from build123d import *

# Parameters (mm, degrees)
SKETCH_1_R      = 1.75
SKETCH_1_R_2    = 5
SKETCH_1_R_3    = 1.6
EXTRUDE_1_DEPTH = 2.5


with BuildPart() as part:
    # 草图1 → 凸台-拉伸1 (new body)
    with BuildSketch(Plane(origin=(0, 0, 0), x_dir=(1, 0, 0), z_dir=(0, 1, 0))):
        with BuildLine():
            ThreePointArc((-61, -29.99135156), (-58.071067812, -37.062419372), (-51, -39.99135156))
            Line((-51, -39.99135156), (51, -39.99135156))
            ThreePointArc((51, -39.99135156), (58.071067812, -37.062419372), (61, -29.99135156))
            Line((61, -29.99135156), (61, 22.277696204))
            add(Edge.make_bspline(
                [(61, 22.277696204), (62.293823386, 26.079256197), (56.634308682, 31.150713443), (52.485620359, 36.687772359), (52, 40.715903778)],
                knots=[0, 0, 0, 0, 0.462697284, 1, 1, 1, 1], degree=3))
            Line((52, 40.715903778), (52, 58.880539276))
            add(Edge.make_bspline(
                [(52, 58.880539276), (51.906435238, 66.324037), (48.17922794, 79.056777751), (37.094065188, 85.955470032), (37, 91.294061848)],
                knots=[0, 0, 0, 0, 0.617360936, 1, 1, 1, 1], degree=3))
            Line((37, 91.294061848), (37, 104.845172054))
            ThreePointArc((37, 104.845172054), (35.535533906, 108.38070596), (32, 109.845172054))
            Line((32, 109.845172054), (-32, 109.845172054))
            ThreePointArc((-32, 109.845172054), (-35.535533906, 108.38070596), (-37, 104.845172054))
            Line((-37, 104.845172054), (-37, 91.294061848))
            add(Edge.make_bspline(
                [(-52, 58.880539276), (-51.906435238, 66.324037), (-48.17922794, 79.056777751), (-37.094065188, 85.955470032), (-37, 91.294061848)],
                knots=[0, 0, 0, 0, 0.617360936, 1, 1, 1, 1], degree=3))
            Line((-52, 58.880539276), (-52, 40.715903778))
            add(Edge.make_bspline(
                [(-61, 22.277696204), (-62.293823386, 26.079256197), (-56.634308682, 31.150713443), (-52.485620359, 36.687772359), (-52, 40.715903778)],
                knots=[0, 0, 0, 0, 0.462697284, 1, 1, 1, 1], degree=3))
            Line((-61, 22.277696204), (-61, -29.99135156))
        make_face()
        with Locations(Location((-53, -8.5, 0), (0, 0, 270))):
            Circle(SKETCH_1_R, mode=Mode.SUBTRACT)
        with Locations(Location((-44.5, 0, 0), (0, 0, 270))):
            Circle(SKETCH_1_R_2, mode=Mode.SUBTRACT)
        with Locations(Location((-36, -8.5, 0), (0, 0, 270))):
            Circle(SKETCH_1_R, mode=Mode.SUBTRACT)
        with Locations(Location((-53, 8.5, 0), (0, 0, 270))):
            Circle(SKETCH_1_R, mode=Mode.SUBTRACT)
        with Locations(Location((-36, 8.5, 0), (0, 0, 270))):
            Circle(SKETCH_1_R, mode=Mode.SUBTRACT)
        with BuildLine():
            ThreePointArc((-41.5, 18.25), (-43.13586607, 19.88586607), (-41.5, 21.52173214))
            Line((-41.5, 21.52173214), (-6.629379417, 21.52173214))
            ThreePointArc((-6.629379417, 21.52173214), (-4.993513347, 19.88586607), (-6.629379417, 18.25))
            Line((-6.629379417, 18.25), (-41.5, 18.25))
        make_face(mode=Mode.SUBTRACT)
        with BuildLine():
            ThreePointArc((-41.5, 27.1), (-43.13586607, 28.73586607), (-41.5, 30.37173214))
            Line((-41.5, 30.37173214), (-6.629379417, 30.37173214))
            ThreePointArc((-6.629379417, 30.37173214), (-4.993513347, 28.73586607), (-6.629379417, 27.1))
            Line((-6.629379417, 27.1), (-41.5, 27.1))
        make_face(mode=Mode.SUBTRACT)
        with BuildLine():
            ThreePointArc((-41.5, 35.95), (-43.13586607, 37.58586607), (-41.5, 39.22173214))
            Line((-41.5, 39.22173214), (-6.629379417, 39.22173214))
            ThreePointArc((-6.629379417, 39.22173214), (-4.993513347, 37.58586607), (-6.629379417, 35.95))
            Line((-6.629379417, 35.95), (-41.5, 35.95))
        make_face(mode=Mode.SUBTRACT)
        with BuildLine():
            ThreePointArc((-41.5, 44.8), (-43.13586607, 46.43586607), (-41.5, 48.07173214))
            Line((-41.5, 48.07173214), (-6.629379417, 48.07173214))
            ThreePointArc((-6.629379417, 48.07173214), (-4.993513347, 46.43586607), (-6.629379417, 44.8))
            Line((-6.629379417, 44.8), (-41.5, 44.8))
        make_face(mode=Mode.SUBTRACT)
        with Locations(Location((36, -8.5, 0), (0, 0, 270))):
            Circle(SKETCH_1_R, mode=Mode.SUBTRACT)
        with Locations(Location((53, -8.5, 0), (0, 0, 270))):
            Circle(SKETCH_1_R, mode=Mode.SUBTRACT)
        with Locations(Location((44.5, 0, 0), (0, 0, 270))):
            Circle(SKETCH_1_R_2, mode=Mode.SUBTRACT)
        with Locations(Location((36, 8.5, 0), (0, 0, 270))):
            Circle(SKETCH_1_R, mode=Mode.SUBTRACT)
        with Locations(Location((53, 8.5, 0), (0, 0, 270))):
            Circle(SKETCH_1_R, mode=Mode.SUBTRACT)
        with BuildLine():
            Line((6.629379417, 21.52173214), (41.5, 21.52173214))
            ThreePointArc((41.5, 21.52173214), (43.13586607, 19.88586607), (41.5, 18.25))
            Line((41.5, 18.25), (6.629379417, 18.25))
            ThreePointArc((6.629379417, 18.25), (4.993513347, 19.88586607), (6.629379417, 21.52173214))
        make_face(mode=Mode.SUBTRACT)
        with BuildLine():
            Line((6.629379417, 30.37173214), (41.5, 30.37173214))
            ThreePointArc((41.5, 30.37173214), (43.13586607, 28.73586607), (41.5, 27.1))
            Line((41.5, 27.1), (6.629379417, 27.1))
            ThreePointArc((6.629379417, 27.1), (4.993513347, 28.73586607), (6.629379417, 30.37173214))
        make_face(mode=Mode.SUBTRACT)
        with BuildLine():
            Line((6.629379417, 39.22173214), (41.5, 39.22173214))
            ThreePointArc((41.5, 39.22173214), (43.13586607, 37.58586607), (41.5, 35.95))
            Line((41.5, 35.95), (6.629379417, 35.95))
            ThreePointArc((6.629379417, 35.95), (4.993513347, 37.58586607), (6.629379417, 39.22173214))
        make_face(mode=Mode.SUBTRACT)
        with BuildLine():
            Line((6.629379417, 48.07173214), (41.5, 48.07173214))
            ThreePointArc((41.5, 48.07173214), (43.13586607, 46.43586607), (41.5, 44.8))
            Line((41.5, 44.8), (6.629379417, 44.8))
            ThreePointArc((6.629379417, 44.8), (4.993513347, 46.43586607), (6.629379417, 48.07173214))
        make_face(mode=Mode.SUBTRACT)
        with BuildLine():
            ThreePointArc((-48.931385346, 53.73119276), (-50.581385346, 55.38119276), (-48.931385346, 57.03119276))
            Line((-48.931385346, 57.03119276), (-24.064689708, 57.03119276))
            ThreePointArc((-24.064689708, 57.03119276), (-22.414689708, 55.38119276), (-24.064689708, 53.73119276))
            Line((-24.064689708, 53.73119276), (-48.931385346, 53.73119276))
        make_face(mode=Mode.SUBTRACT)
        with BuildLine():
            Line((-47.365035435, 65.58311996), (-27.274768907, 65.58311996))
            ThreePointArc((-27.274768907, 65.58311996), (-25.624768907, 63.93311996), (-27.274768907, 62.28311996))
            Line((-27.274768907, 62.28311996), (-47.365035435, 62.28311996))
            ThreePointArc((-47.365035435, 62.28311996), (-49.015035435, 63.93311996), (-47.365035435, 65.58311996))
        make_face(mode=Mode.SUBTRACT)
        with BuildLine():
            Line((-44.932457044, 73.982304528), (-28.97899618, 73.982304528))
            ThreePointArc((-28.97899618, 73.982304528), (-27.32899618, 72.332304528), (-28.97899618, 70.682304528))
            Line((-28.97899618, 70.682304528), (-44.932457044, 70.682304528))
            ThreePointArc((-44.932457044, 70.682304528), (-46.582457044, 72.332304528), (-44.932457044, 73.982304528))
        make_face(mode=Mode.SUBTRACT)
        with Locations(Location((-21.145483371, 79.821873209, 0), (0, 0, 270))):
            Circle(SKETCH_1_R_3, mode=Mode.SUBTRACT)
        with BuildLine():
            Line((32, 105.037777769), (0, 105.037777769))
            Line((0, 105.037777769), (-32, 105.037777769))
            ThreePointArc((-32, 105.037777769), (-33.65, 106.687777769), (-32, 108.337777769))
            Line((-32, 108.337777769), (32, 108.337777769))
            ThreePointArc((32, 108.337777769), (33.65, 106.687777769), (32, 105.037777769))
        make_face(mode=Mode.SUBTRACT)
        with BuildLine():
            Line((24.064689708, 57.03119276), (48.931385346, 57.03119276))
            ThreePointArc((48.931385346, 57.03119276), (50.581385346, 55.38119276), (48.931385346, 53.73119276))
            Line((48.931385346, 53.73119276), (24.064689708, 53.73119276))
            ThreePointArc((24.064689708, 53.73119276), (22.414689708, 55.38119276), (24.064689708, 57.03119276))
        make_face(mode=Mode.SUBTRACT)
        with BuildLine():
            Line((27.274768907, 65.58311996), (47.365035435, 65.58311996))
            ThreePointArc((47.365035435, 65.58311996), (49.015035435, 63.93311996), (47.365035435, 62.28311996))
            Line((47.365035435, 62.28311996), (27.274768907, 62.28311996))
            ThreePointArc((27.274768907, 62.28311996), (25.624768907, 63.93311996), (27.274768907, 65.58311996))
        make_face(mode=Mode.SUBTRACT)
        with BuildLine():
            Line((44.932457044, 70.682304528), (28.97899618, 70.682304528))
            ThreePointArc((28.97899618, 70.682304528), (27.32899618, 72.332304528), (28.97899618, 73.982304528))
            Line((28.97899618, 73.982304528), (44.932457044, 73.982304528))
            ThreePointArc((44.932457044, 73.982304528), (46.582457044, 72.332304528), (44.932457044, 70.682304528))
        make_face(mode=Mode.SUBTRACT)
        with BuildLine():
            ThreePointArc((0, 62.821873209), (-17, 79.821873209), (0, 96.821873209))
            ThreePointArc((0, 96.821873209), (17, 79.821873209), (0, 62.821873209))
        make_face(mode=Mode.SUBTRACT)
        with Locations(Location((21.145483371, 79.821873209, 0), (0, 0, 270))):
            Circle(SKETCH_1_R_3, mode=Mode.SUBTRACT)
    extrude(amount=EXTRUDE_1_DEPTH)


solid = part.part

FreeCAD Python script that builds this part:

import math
import FreeCAD as App
import Part
import Sketcher
Q = App.Units.Quantity

doc = App.newDocument("Part")
body = doc.addObject("PartDesign::Body", "Body")

sketch1 = doc.addObject("Sketcher::SketchObject", "Sketch")
body.addObject(sketch1)
sketch1.AttachmentSupport = (doc.XZ_Plane, [""])
sketch1.MapMode = "FlatFace"
sketch1.addGeometry([
    Part.ArcOfCircle(Part.Circle(App.Vector(-51, 29.991352, 0), App.Vector(0, 0, 1), 10), math.radians(90), math.radians(180)),
    Part.LineSegment(App.Vector(-51, 39.991352, 0), App.Vector(51, 39.991352, 0)),
    Part.ArcOfCircle(Part.Circle(App.Vector(51, 29.991352, 0), App.Vector(0, 0, 1), 10), math.radians(0), math.radians(90)),
    Part.LineSegment(App.Vector(61, 29.991352, 0), App.Vector(61, -22.277696, 0)),
    Part.BSplineCurve([App.Vector(61, -22.277696, 0), App.Vector(62.293823, -26.079256, 0), App.Vector(56.634309, -31.150713, 0), App.Vector(52.48562, -36.687772, 0), App.Vector(52, -40.715904, 0)], [4, 1, 4], [0, 0.462697284, 1], False, 3, [1, 1, 1, 1, 1], False),
    Part.LineSegment(App.Vector(52, -40.715904, 0), App.Vector(52, -58.880539, 0)),
    Part.BSplineCurve([App.Vector(52, -58.880539, 0), App.Vector(51.906435, -66.324037, 0), App.Vector(48.179228, -79.056778, 0), App.Vector(37.094065, -85.95547, 0), App.Vector(37, -91.294062, 0)], [4, 1, 4], [0, 0.617360936, 1], False, 3, [1, 1, 1, 1, 1], False),
    Part.LineSegment(App.Vector(37, -91.294062, 0), App.Vector(37, -104.845172, 0)),
    Part.ArcOfCircle(Part.Circle(App.Vector(32, -104.845172, 0), App.Vector(0, 0, 1), 5), math.radians(-90), math.radians(0)),
    Part.LineSegment(App.Vector(32, -109.845172, 0), App.Vector(-32, -109.845172, 0)),
    Part.ArcOfCircle(Part.Circle(App.Vector(-32, -104.845172, 0), App.Vector(0, 0, 1), 5), math.radians(180), math.radians(270)),
    Part.LineSegment(App.Vector(-37, -104.845172, 0), App.Vector(-37, -91.294062, 0)),
    Part.BSplineCurve([App.Vector(-52, -58.880539, 0), App.Vector(-51.906435, -66.324037, 0), App.Vector(-48.179228, -79.056778, 0), App.Vector(-37.094065, -85.95547, 0), App.Vector(-37, -91.294062, 0)], [4, 1, 4], [0, 0.617360936, 1], False, 3, [1, 1, 1, 1, 1], False),
    Part.LineSegment(App.Vector(-52, -58.880539, 0), App.Vector(-52, -40.715904, 0)),
    Part.BSplineCurve([App.Vector(-61, -22.277696, 0), App.Vector(-62.293823, -26.079256, 0), App.Vector(-56.634309, -31.150713, 0), App.Vector(-52.48562, -36.687772, 0), App.Vector(-52, -40.715904, 0)], [4, 1, 4], [0, 0.462697284, 1], False, 3, [1, 1, 1, 1, 1], False),
    Part.LineSegment(App.Vector(-61, -22.277696, 0), App.Vector(-61, 29.991352, 0)),
    Part.Circle(App.Vector(-53, 8.5, 0), App.Vector(0, 0, 1), 1.75),
    Part.Circle(App.Vector(-44.5, 0, 0), App.Vector(0, 0, 1), 5),
    Part.Circle(App.Vector(-36, 8.5, 0), App.Vector(0, 0, 1), 1.75),
    Part.Circle(App.Vector(-53, -8.5, 0), App.Vector(0, 0, 1), 1.75),
    Part.Circle(App.Vector(-36, -8.5, 0), App.Vector(0, 0, 1), 1.75),
    Part.LineSegment(App.Vector(-6.629379, -18.25, 0), App.Vector(-41.5, -18.25, 0)),
    Part.ArcOfCircle(Part.Circle(App.Vector(-41.5, -19.885866, 0), App.Vector(0, 0, 1), 1.635866), math.radians(90), math.radians(270)),
    Part.LineSegment(App.Vector(-41.5, -21.521732, 0), App.Vector(-6.629379, -21.521732, 0)),
    Part.ArcOfCircle(Part.Circle(App.Vector(-6.629379, -19.885866, 0), App.Vector(0, 0, 1), 1.635866), math.radians(-90), math.radians(90)),
    Part.LineSegment(App.Vector(-6.629379, -27.1, 0), App.Vector(-41.5, -27.1, 0)),
    Part.ArcOfCircle(Part.Circle(App.Vector(-41.5, -28.735866, 0), App.Vector(0, 0, 1), 1.635866), math.radians(90), math.radians(270)),
    Part.LineSegment(App.Vector(-41.5, -30.371732, 0), App.Vector(-6.629379, -30.371732, 0)),
    Part.ArcOfCircle(Part.Circle(App.Vector(-6.629379, -28.735866, 0), App.Vector(0, 0, 1), 1.635866), math.radians(-90), math.radians(90)),
    Part.LineSegment(App.Vector(-6.629379, -35.95, 0), App.Vector(-41.5, -35.95, 0)),
    Part.ArcOfCircle(Part.Circle(App.Vector(-41.5, -37.585866, 0), App.Vector(0, 0, 1), 1.635866), math.radians(90), math.radians(270)),
    Part.LineSegment(App.Vector(-41.5, -39.221732, 0), App.Vector(-6.629379, -39.221732, 0)),
    Part.ArcOfCircle(Part.Circle(App.Vector(-6.629379, -37.585866, 0), App.Vector(0, 0, 1), 1.635866), math.radians(-90), math.radians(90)),
    Part.LineSegment(App.Vector(-6.629379, -44.8, 0), App.Vector(-41.5, -44.8, 0)),
    Part.ArcOfCircle(Part.Circle(App.Vector(-41.5, -46.435866, 0), App.Vector(0, 0, 1), 1.635866), math.radians(90), math.radians(270)),
    Part.LineSegment(App.Vector(-41.5, -48.071732, 0), App.Vector(-6.629379, -48.071732, 0)),
    Part.ArcOfCircle(Part.Circle(App.Vector(-6.629379, -46.435866, 0), App.Vector(0, 0, 1), 1.635866), math.radians(-90), math.radians(90)),
    Part.Circle(App.Vector(36, 8.5, 0), App.Vector(0, 0, 1), 1.75),
    Part.Circle(App.Vector(53, 8.5, 0), App.Vector(0, 0, 1), 1.75),
    Part.Circle(App.Vector(44.5, 0, 0), App.Vector(0, 0, 1), 5),
    Part.Circle(App.Vector(36, -8.5, 0), App.Vector(0, 0, 1), 1.75),
    Part.Circle(App.Vector(53, -8.5, 0), App.Vector(0, 0, 1), 1.75),
    Part.ArcOfCircle(Part.Circle(App.Vector(6.629379, -19.885866, 0), App.Vector(0, 0, 1), 1.635866), math.radians(90), math.radians(270)),
    Part.LineSegment(App.Vector(6.629379, -21.521732, 0), App.Vector(41.5, -21.521732, 0)),
    Part.ArcOfCircle(Part.Circle(App.Vector(41.5, -19.885866, 0), App.Vector(0, 0, 1), 1.635866), math.radians(-90), math.radians(90)),
    Part.LineSegment(App.Vector(41.5, -18.25, 0), App.Vector(6.629379, -18.25, 0)),
    Part.ArcOfCircle(Part.Circle(App.Vector(6.629379, -28.735866, 0), App.Vector(0, 0, 1), 1.635866), math.radians(90), math.radians(270)),
    Part.LineSegment(App.Vector(6.629379, -30.371732, 0), App.Vector(41.5, -30.371732, 0)),
    Part.ArcOfCircle(Part.Circle(App.Vector(41.5, -28.735866, 0), App.Vector(0, 0, 1), 1.635866), math.radians(-90), math.radians(90)),
    Part.LineSegment(App.Vector(41.5, -27.1, 0), App.Vector(6.629379, -27.1, 0)),
    Part.ArcOfCircle(Part.Circle(App.Vector(6.629379, -37.585866, 0), App.Vector(0, 0, 1), 1.635866), math.radians(90), math.radians(270)),
    Part.LineSegment(App.Vector(6.629379, -39.221732, 0), App.Vector(41.5, -39.221732, 0)),
    Part.ArcOfCircle(Part.Circle(App.Vector(41.5, -37.585866, 0), App.Vector(0, 0, 1), 1.635866), math.radians(-90), math.radians(90)),
    Part.LineSegment(App.Vector(41.5, -35.95, 0), App.Vector(6.629379, -35.95, 0)),
    Part.ArcOfCircle(Part.Circle(App.Vector(6.629379, -46.435866, 0), App.Vector(0, 0, 1), 1.635866), math.radians(90), math.radians(270)),
    Part.LineSegment(App.Vector(6.629379, -48.071732, 0), App.Vector(41.5, -48.071732, 0)),
    Part.ArcOfCircle(Part.Circle(App.Vector(41.5, -46.435866, 0), App.Vector(0, 0, 1), 1.635866), math.radians(-90), math.radians(90)),
    Part.LineSegment(App.Vector(41.5, -44.8, 0), App.Vector(6.629379, -44.8, 0)),
    Part.LineSegment(App.Vector(-24.06469, -53.731193, 0), App.Vector(-48.931385, -53.731193, 0)),
    Part.ArcOfCircle(Part.Circle(App.Vector(-48.931385, -55.381193, 0), App.Vector(0, 0, 1), 1.65), math.radians(90), math.radians(270)),
    Part.LineSegment(App.Vector(-48.931385, -57.031193, 0), App.Vector(-24.06469, -57.031193, 0)),
    Part.ArcOfCircle(Part.Circle(App.Vector(-24.06469, -55.381193, 0), App.Vector(0, 0, 1), 1.65), math.radians(-90), math.radians(90)),
    Part.ArcOfCircle(Part.Circle(App.Vector(-47.365035, -63.93312, 0), App.Vector(0, 0, 1), 1.65), math.radians(90), math.radians(270)),
    Part.LineSegment(App.Vector(-47.365035, -65.58312, 0), App.Vector(-27.274769, -65.58312, 0)),
    Part.ArcOfCircle(Part.Circle(App.Vector(-27.274769, -63.93312, 0), App.Vector(0, 0, 1), 1.65), math.radians(-90), math.radians(90)),
    Part.LineSegment(App.Vector(-27.274769, -62.28312, 0), App.Vector(-47.365035, -62.28312, 0)),
    Part.ArcOfCircle(Part.Circle(App.Vector(-44.932457, -72.332305, 0), App.Vector(0, 0, 1), 1.65), math.radians(90), math.radians(270)),
    Part.LineSegment(App.Vector(-44.932457, -73.982305, 0), App.Vector(-28.978996, -73.982305, 0)),
    Part.ArcOfCircle(Part.Circle(App.Vector(-28.978996, -72.332305, 0), App.Vector(0, 0, 1), 1.65), math.radians(-90), math.radians(90)),
    Part.LineSegment(App.Vector(-28.978996, -70.682305, 0), App.Vector(-44.932457, -70.682305, 0)),
    Part.Circle(App.Vector(-21.145483, -79.821873, 0), App.Vector(0, 0, 1), 1.6),
    Part.ArcOfCircle(Part.Circle(App.Vector(24.06469, -55.381193, 0), App.Vector(0, 0, 1), 1.65), math.radians(90), math.radians(270)),
    Part.LineSegment(App.Vector(24.06469, -57.031193, 0), App.Vector(48.931385, -57.031193, 0)),
    Part.ArcOfCircle(Part.Circle(App.Vector(48.931385, -55.381193, 0), App.Vector(0, 0, 1), 1.65), math.radians(-90), math.radians(90)),
    Part.LineSegment(App.Vector(48.931385, -53.731193, 0), App.Vector(24.06469, -53.731193, 0)),
    Part.ArcOfCircle(Part.Circle(App.Vector(27.274769, -63.93312, 0), App.Vector(0, 0, 1), 1.65), math.radians(90), math.radians(270)),
    Part.LineSegment(App.Vector(27.274769, -65.58312, 0), App.Vector(47.365035, -65.58312, 0)),
    Part.ArcOfCircle(Part.Circle(App.Vector(47.365035, -63.93312, 0), App.Vector(0, 0, 1), 1.65), math.radians(-90), math.radians(90)),
    Part.LineSegment(App.Vector(47.365035, -62.28312, 0), App.Vector(27.274769, -62.28312, 0)),
    Part.ArcOfCircle(Part.Circle(App.Vector(44.932457, -72.332305, 0), App.Vector(0, 0, 1), 1.65), math.radians(-90), math.radians(90)),
    Part.LineSegment(App.Vector(44.932457, -70.682305, 0), App.Vector(28.978996, -70.682305, 0)),
    Part.ArcOfCircle(Part.Circle(App.Vector(28.978996, -72.332305, 0), App.Vector(0, 0, 1), 1.65), math.radians(90), math.radians(270)),
    Part.LineSegment(App.Vector(28.978996, -73.982305, 0), App.Vector(44.932457, -73.982305, 0)),
    Part.Circle(App.Vector(0, -79.821873, 0), App.Vector(0, 0, 1), 17),
    Part.Circle(App.Vector(21.145483, -79.821873, 0), App.Vector(0, 0, 1), 1.6),
    Part.ArcOfCircle(Part.Circle(App.Vector(32, -106.687778, 0), App.Vector(0, 0, 1), 1.65), math.radians(-90), math.radians(90)),
    Part.LineSegment(App.Vector(32, -105.037778, 0), App.Vector(-32, -105.037778, 0)),
    Part.ArcOfCircle(Part.Circle(App.Vector(-32, -106.687778, 0), App.Vector(0, 0, 1), 1.65), math.radians(90), math.radians(270)),
    Part.LineSegment(App.Vector(-32, -108.337778, 0), App.Vector(32, -108.337778, 0)),
], False)
sketch1.addConstraint([
    Sketcher.Constraint("Block", 4),
    Sketcher.Constraint("Block", 6),
    Sketcher.Constraint("Block", 12),
    Sketcher.Constraint("Block", 14),
    Sketcher.Constraint("Tangent", 0, 1, 1, 1),
    Sketcher.Constraint("Tangent", 1, 2, 2, 2),
    Sketcher.Constraint("Tangent", 2, 1, 3, 1),
    Sketcher.Constraint("Coincident", 3, 2, 4, 1),
    Sketcher.Constraint("Coincident", 4, 2, 5, 1),
    Sketcher.Constraint("Coincident", 5, 2, 6, 1),
    Sketcher.Constraint("Coincident", 6, 2, 7, 1),
    Sketcher.Constraint("Tangent", 7, 2, 8, 2),
    Sketcher.Constraint("Tangent", 8, 1, 9, 1),
    Sketcher.Constraint("Tangent", 9, 2, 10, 2),
    Sketcher.Constraint("Tangent", 10, 1, 11, 1),
    Sketcher.Constraint("Coincident", 11, 2, 12, 2),
    Sketcher.Constraint("Coincident", 12, 1, 13, 1),
    Sketcher.Constraint("Coincident", 13, 2, 14, 2),
    Sketcher.Constraint("Coincident", 14, 1, 15, 1),
    Sketcher.Constraint("Tangent", 15, 2, 0, 2),
    Sketcher.Constraint("Tangent", 21, 2, 22, 1),
    Sketcher.Constraint("Tangent", 22, 2, 23, 1),
    Sketcher.Constraint("Tangent", 23, 2, 24, 1),
    Sketcher.Constraint("Tangent", 24, 2, 21, 1),
    Sketcher.Constraint("Tangent", 25, 2, 26, 1),
    Sketcher.Constraint("Tangent", 26, 2, 27, 1),
    Sketcher.Constraint("Tangent", 27, 2, 28, 1),
    Sketcher.Constraint("Tangent", 28, 2, 25, 1),
    Sketcher.Constraint("Tangent", 29, 2, 30, 1),
    Sketcher.Constraint("Tangent", 30, 2, 31, 1),
    Sketcher.Constraint("Tangent", 31, 2, 32, 1),
    Sketcher.Constraint("Tangent", 32, 2, 29, 1),
    Sketcher.Constraint("Tangent", 33, 2, 34, 1),
    Sketcher.Constraint("Tangent", 34, 2, 35, 1),
    Sketcher.Constraint("Tangent", 35, 2, 36, 1),
    Sketcher.Constraint("Tangent", 36, 2, 33, 1),
    Sketcher.Constraint("Tangent", 42, 2, 43, 1),
    Sketcher.Constraint("Tangent", 43, 2, 44, 1),
    Sketcher.Constraint("Tangent", 44, 2, 45, 1),
    Sketcher.Constraint("Tangent", 45, 2, 42, 1),
    Sketcher.Constraint("Tangent", 46, 2, 47, 1),
    Sketcher.Constraint("Tangent", 47, 2, 48, 1),
    Sketcher.Constraint("Tangent", 48, 2, 49, 1),
    Sketcher.Constraint("Tangent", 49, 2, 46, 1),
    Sketcher.Constraint("Tangent", 50, 2, 51, 1),
    Sketcher.Constraint("Tangent", 51, 2, 52, 1),
    Sketcher.Constraint("Tangent", 52, 2, 53, 1),
    Sketcher.Constraint("Tangent", 53, 2, 50, 1),
    Sketcher.Constraint("Tangent", 54, 2, 55, 1),
    Sketcher.Constraint("Tangent", 55, 2, 56, 1),
    Sketcher.Constraint("Tangent", 56, 2, 57, 1),
    Sketcher.Constraint("Tangent", 57, 2, 54, 1),
    Sketcher.Constraint("Tangent", 58, 2, 59, 1),
    Sketcher.Constraint("Tangent", 59, 2, 60, 1),
    Sketcher.Constraint("Tangent", 60, 2, 61, 1),
    Sketcher.Constraint("Tangent", 61, 2, 58, 1),
    Sketcher.Constraint("Tangent", 62, 2, 63, 1),
    Sketcher.Constraint("Tangent", 63, 2, 64, 1),
    Sketcher.Constraint("Tangent", 64, 2, 65, 1),
    Sketcher.Constraint("Tangent", 65, 2, 62, 1),
    Sketcher.Constraint("Tangent", 66, 2, 67, 1),
    Sketcher.Constraint("Tangent", 67, 2, 68, 1),
    Sketcher.Constraint("Tangent", 68, 2, 69, 1),
    Sketcher.Constraint("Tangent", 69, 2, 66, 1),
    Sketcher.Constraint("Tangent", 71, 2, 72, 1),
    Sketcher.Constraint("Tangent", 72, 2, 73, 1),
    Sketcher.Constraint("Tangent", 73, 2, 74, 1),
    Sketcher.Constraint("Tangent", 74, 2, 71, 1),
    Sketcher.Constraint("Tangent", 75, 2, 76, 1),
    Sketcher.Constraint("Tangent", 76, 2, 77, 1),
    Sketcher.Constraint("Tangent", 77, 2, 78, 1),
    Sketcher.Constraint("Tangent", 78, 2, 75, 1),
    Sketcher.Constraint("Tangent", 79, 2, 80, 1),
    Sketcher.Constraint("Tangent", 80, 2, 81, 1),
    Sketcher.Constraint("Tangent", 81, 2, 82, 1),
    Sketcher.Constraint("Tangent", 82, 2, 79, 1),
    Sketcher.Constraint("Tangent", 85, 2, 86, 1),
    Sketcher.Constraint("Tangent", 86, 2, 87, 1),
    Sketcher.Constraint("Tangent", 87, 2, 88, 1),
    Sketcher.Constraint("Tangent", 88, 2, 85, 1),
    Sketcher.Constraint("Horizontal", 1),
    Sketcher.Constraint("Vertical", 3),
    Sketcher.Constraint("Vertical", 7),
    Sketcher.Constraint("Horizontal", 9),
    Sketcher.Constraint("Vertical", 11),
    Sketcher.Constraint("Vertical", 15),
    Sketcher.Constraint("Horizontal", 21),
    Sketcher.Constraint("Horizontal", 23),
    Sketcher.Constraint("Horizontal", 25),
    Sketcher.Constraint("Horizontal", 27),
    Sketcher.Constraint("Horizontal", 29),
    Sketcher.Constraint("Horizontal", 31),
    Sketcher.Constraint("Horizontal", 33),
    Sketcher.Constraint("Horizontal", 35),
    Sketcher.Constraint("Horizontal", 43),
    Sketcher.Constraint("Horizontal", 45),
    Sketcher.Constraint("Horizontal", 47),
    Sketcher.Constraint("Horizontal", 49),
    Sketcher.Constraint("Horizontal", 51),
    Sketcher.Constraint("Horizontal", 53),
    Sketcher.Constraint("Horizontal", 55),
    Sketcher.Constraint("Horizontal", 57),
    Sketcher.Constraint("Horizontal", 58),
    Sketcher.Constraint("Horizontal", 60),
    Sketcher.Constraint("Horizontal", 63),
    Sketcher.Constraint("Horizontal", 65),
    Sketcher.Constraint("Horizontal", 67),
    Sketcher.Constraint("Horizontal", 69),
    Sketcher.Constraint("Horizontal", 72),
    Sketcher.Constraint("Horizontal", 74),
    Sketcher.Constraint("Horizontal", 76),
    Sketcher.Constraint("Horizontal", 78),
    Sketcher.Constraint("Horizontal", 80),
    Sketcher.Constraint("Horizontal", 82),
    Sketcher.Constraint("Horizontal", 86),
    Sketcher.Constraint("Horizontal", 88),
    Sketcher.Constraint("Equal", 0, 2),
    Sketcher.Constraint("Equal", 8, 10),
    Sketcher.Constraint("Equal", 10, 17),
    Sketcher.Constraint("Equal", 16, 18),
    Sketcher.Constraint("Equal", 18, 19),
    Sketcher.Constraint("Equal", 19, 20),
    Sketcher.Constraint("Equal", 24, 26),
    Sketcher.Constraint("Equal", 28, 30),
    Sketcher.Constraint("Equal", 32, 34),
    Sketcher.Constraint("Equal", 20, 37),
    Sketcher.Constraint("Equal", 37, 38),
    Sketcher.Constraint("Equal", 17, 39),
    Sketcher.Constraint("Equal", 38, 40),
    Sketcher.Constraint("Equal", 40, 41),
    Sketcher.Constraint("Equal", 36, 42),
    Sketcher.Constraint("Equal", 44, 46),
    Sketcher.Constraint("Equal", 48, 50),
    Sketcher.Constraint("Equal", 52, 54),
    Sketcher.Constraint("Equal", 61, 62),
    Sketcher.Constraint("Equal", 64, 66),
    Sketcher.Constraint("Equal", 68, 71),
    Sketcher.Constraint("Equal", 73, 75),
    Sketcher.Constraint("Equal", 77, 79),
    Sketcher.Constraint("Equal", 70, 84),
    Sketcher.Constraint("Equal", 81, 85),
    Sketcher.Constraint("Symmetric", 20, 3, 37, 3, -1, 1),
    Sketcher.Constraint("Symmetric", 19, 3, 38, 3, -1, 1),
    Sketcher.Constraint("Symmetric", 17, 3, 39, 3, -1, 1),
    Sketcher.Constraint("Symmetric", 18, 3, 40, 3, -1, 1),
    Sketcher.Constraint("Symmetric", 16, 3, 41, 3, -1, 1),
    Sketcher.Constraint("Symmetric", 18, 3, 37, 3, -2),
    Sketcher.Constraint("Symmetric", 16, 3, 38, 3, -2),
    Sketcher.Constraint("Symmetric", 24, 3, 42, 3, -2),
    Sketcher.Constraint("Symmetric", 28, 3, 46, 3, -2),
    Sketcher.Constraint("Symmetric", 32, 3, 50, 3, -2),
    Sketcher.Constraint("Symmetric", 36, 3, 54, 3, -2),
    Sketcher.Constraint("Symmetric", 61, 3, 71, 3, -2),
    Sketcher.Constraint("Symmetric", 64, 3, 75, 3, -2),
    Sketcher.Constraint("Symmetric", 66, 3, 79, 3, -2),
    Sketcher.Constraint("Symmetric", 70, 3, 84, 3, -2),
    Sketcher.Constraint("PointOnObject", 17, 3, -1),
    Sketcher.Constraint("PointOnObject", 83, 3, -2),
    Sketcher.Constraint("Horizontal", 16, 3, 18, 3),
    Sketcher.Constraint("Horizontal", 70, 3, 83, 3),
    Sketcher.Constraint("Vertical", 22, 3, 26, 3),
    Sketcher.Constraint("Vertical", 24, 3, 28, 3),
    Sketcher.Constraint("Vertical", 26, 3, 30, 3),
    Sketcher.Constraint("Vertical", 28, 3, 32, 3),
    Sketcher.Constraint("Vertical", 30, 3, 34, 3),
    Sketcher.Constraint("Vertical", 32, 3, 36, 3),
    Sketcher.Constraint("Vertical", 44, 3, 48, 3),
    Sketcher.Constraint("Vertical", 48, 3, 52, 3),
    Sketcher.Constraint("Vertical", 52, 3, 56, 3),
    Sketcher.Constraint("Vertical", 8, 3, 85, 3),
    Sketcher.Constraint("Vertical", 10, 3, 87, 3),
    Sketcher.Constraint("Equal", 35, 43),
    Sketcher.Constraint("Equal", 60, 72),
    Sketcher.Constraint("Equal", 65, 76),
    Sketcher.Constraint("Equal", 69, 80),
    Sketcher.Constraint("Diameter", 17, Q("10 mm")),
    Sketcher.Constraint("Diameter", 83, Q("34 mm")),
    Sketcher.Constraint("Radius", 0, Q("10 mm")),
    Sketcher.Constraint("Diameter", 16, Q("3.5 mm")),
    Sketcher.Constraint("Diameter", 70, Q("3.2 mm")),
    Sketcher.Constraint("Radius", 59, Q("1.65 mm")),
    Sketcher.Constraint("DistanceX", 16, 3, -1, 1, Q("53 mm")),
    Sketcher.Constraint("DistanceX", 18, 3, -1, 1, Q("36 mm")),
    Sketcher.Constraint("DistanceY", -1, 1, 16, 3, Q("8.5 mm")),
    Sketcher.Constraint("DistanceX", 17, 3, -1, 1, Q("44.5 mm")),
    Sketcher.Constraint("DistanceX", 22, 3, -1, 1, Q("41.5 mm")),
    Sketcher.Constraint("DistanceY", 25, 2, -1, 1, Q("27.1 mm")),
    Sketcher.Constraint("DistanceY", 33, 2, -1, 1, Q("44.8 mm")),
    Sketcher.Constraint("DistanceY", 21, 2, -1, 1, Q("18.25 mm")),
    Sketcher.Constraint("DistanceY", 29, 2, -1, 1, Q("35.95 mm")),
    Sketcher.Constraint("Radius", 22, Q("1.635866 mm")),
    Sketcher.Constraint("DistanceX", 21, 2, 21, 1, Q("34.870621 mm")),
    Sketcher.Constraint("DistanceX", 67, 1, 67, 2, Q("15.953461 mm")),
    Sketcher.Constraint("DistanceY", 7, 2, 7, 1, Q("13.55111 mm")),
    Sketcher.Constraint("DistanceX", 58, 2, 58, 1, Q("24.866696 mm")),
    Sketcher.Constraint("DistanceX", 63, 1, 63, 2, Q("20.090267 mm")),
    Sketcher.Constraint("DistanceY", 3, 2, 3, 1, Q("52.269048 mm")),
    Sketcher.Constraint("DistanceX", 61, 3, -1, 1, Q("24.06469 mm")),
    Sketcher.Constraint("DistanceY", 62, 3, -1, 1, Q("63.93312 mm")),
    Sketcher.Constraint("DistanceX", 64, 3, -1, 1, Q("27.274769 mm")),
    Sketcher.Constraint("DistanceY", 59, 3, -1, 1, Q("55.381193 mm")),
    Sketcher.Constraint("DistanceX", 66, 3, -1, 1, Q("44.932457 mm")),
    Sketcher.Constraint("DistanceY", 66, 3, -1, 1, Q("72.332305 mm")),
    Sketcher.Constraint("DistanceX", 70, 3, -1, 1, Q("21.145483 mm")),
    Sketcher.Constraint("DistanceY", 70, 3, -1, 1, Q("79.821873 mm")),
    Sketcher.Constraint("DistanceY", 85, 3, -1, 1, Q("106.687778 mm")),
])
pad1 = doc.addObject("PartDesign::Pad", "Pad")
body.addObject(pad1)
pad1.Profile = sketch1
pad1.Length = 2.5
pad1.Reversed = True

doc.recompute()
